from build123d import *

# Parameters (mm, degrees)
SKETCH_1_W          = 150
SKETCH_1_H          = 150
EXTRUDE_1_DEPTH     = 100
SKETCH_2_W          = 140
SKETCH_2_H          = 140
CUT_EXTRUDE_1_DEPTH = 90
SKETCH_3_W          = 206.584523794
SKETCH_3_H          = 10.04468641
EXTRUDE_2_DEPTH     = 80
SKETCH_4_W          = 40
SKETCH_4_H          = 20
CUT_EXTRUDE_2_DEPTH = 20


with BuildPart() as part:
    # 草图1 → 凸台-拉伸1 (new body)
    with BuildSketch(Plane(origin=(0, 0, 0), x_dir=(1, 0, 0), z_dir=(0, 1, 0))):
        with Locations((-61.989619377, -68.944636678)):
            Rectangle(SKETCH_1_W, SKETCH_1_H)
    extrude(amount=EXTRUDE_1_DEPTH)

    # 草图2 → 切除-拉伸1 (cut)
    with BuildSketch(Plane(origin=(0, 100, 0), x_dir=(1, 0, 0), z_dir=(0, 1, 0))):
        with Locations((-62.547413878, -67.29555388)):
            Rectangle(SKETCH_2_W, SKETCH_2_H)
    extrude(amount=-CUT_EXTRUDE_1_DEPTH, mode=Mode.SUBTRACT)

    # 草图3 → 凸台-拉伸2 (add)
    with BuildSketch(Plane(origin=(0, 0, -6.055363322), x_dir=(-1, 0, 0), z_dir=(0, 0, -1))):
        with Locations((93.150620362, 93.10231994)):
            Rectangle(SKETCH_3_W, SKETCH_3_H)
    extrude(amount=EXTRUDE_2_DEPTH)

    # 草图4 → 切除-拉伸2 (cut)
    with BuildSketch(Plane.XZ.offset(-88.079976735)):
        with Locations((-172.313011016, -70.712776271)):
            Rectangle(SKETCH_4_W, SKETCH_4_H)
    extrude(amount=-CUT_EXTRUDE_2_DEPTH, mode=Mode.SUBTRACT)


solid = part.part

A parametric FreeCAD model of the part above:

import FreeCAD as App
import Part
import Sketcher
from FreeCAD import Vector

doc = App.newDocument("Part")
body = doc.addObject("PartDesign::Body", "Body")

sketch1 = body.newObject("Sketcher::SketchObject", "Sketch")
sketch1.AttachmentSupport = (doc.getObject("XZ_Plane"), [""])
sketch1.MapMode = "FlatFace"
sketch1.addGeometry(Part.LineSegment(Vector(-137, -6, 0), Vector(-137, 144, 0)), False)
sketch1.addGeometry(Part.LineSegment(Vector(-137, 144, 0), Vector(13, 144, 0)), False)
sketch1.addGeometry(Part.LineSegment(Vector(13, 144, 0), Vector(13, -6, 0)), False)
sketch1.addGeometry(Part.LineSegment(Vector(13, -6, 0), Vector(-137, -6, 0)), False)
sketch1.addConstraint(Sketcher.Constraint("Coincident", 0, 2, 1, 1))
sketch1.addConstraint(Sketcher.Constraint("Coincident", 1, 2, 2, 1))
sketch1.addConstraint(Sketcher.Constraint("Coincident", 2, 2, 3, 1))
sketch1.addConstraint(Sketcher.Constraint("Coincident", 3, 2, 0, 1))
sketch1.addConstraint(Sketcher.Constraint("Vertical", 0))
sketch1.addConstraint(Sketcher.Constraint("Horizontal", 1))
sketch1.addConstraint(Sketcher.Constraint("Vertical", 2))
sketch1.addConstraint(Sketcher.Constraint("Horizontal", 3))
sketch1.addConstraint(Sketcher.Constraint("Equal", 3, 0))
sketch1.addConstraint(Sketcher.Constraint("DistanceX", 1, 1, 1, 2, 150.0))
sketch1.addConstraint(Sketcher.Constraint("DistanceX", 0, 2, -1, 1, 136.989619))
sketch1.addConstraint(Sketcher.Constraint("DistanceY", -1, 1, 0, 2, 143.944637))
pad1 = body.newObject("PartDesign::Pad", "Pad")
pad1.Profile = sketch1
pad1.Length = 100
pad1.Reversed = True

sketch2 = body.newObject("Sketcher::SketchObject", "Sketch001")
sketch2.AttachmentSupport = (doc.getObject("XZ_Plane"), [""])
sketch2.MapMode = "FlatFace"
sketch2.AttachmentOffset = App.Placement(Vector(0, 0, -100), App.Rotation())
sketch2.addGeometry(Part.LineSegment(Vector(-133, -3, 0), Vector(-133, 137, 0)), False)
sketch2.addGeometry(Part.LineSegment(Vector(-133, 137, 0), Vector(7, 137, 0)), False)
sketch2.addGeometry(Part.LineSegment(Vector(7, 137, 0), Vector(7, -3, 0)), False)
sketch2.addGeometry(Part.LineSegment(Vector(7, -3, 0), Vector(-133, -3, 0)), False)
sketch2.addConstraint(Sketcher.Constraint("Coincident", 0, 2, 1, 1))
sketch2.addConstraint(Sketcher.Constraint("Coincident", 1, 2, 2, 1))
sketch2.addConstraint(Sketcher.Constraint("Coincident", 2, 2, 3, 1))
sketch2.addConstraint(Sketcher.Constraint("Coincident", 3, 2, 0, 1))
sketch2.addConstraint(Sketcher.Constraint("Vertical", 0))
sketch2.addConstraint(Sketcher.Constraint("Horizontal", 1))
sketch2.addConstraint(Sketcher.Constraint("Vertical", 2))
sketch2.addConstraint(Sketcher.Constraint("Horizontal", 3))
sketch2.addConstraint(Sketcher.Constraint("Equal", 3, 0))
sketch2.addConstraint(Sketcher.Constraint("DistanceX", 1, 1, 1, 2, 140.0))
sketch2.addConstraint(Sketcher.Constraint("DistanceX", 0, 2, -1, 1, 132.547414))
sketch2.addConstraint(Sketcher.Constraint("DistanceY", -1, 1, 0, 2, 137.295554))
pocket1 = body.newObject("PartDesign::Pocket", "Pocket")
pocket1.Profile = sketch2
pocket1.Length = 90
pocket1.Reversed = True

sketch3 = body.newObject("Sketcher::SketchObject", "Sketch002")
sketch3.AttachmentSupport = (doc.getObject("XY_Plane"), [""])
sketch3.MapMode = "FlatFace"
sketch3.AttachmentOffset = App.Placement(Vector(0, 0, -6.055363), App.Rotation())
sketch3.addGeometry(Part.LineSegment(Vector(10, 98, 0), Vector(10, 88, 0)), False)
sketch3.addGeometry(Part.LineSegment(Vector(10, 88, 0), Vector(-196, 88, 0)), False)
sketch3.addGeometry(Part.LineSegment(Vector(-196, 88, 0), Vector(-196, 98, 0)), False)
sketch3.addGeometry(Part.LineSegment(Vector(-196, 98, 0), Vector(10, 98, 0)), False)
sketch3.addConstraint(Sketcher.Constraint("Coincident", 0, 2, 1, 1))
sketch3.addConstraint(Sketcher.Constraint("Coincident", 1, 2, 2, 1))
sketch3.addConstraint(Sketcher.Constraint("Coincident", 2, 2, 3, 1))
sketch3.addConstraint(Sketcher.Constraint("Coincident", 3, 2, 0, 1))
sketch3.addConstraint(Sketcher.Constraint("Vertical", 0))
sketch3.addConstraint(Sketcher.Constraint("Horizontal", 1))
sketch3.addConstraint(Sketcher.Constraint("Vertical", 2))
sketch3.addConstraint(Sketcher.Constraint("Horizontal", 3))
sketch3.addConstraint(Sketcher.Constraint("DistanceX", 1, 2, 1, 1, 206.584524))
sketch3.addConstraint(Sketcher.Constraint("DistanceY", 0, 2, 0, 1, 10.044686))
sketch3.addConstraint(Sketcher.Constraint("DistanceX", -1, 1, 0, 2, 10.141642))
sketch3.addConstraint(Sketcher.Constraint("DistanceY", -1, 1, 0, 2, 88.079977))
pad2 = body.newObject("PartDesign::Pad", "Pad001")
pad2.Profile = sketch3
pad2.Length = 80
pad2.Reversed = True

sketch4 = body.newObject("Sketcher::SketchObject", "Sketch003")
sketch4.AttachmentSupport = (doc.getObject("XZ_Plane"), [""])
sketch4.MapMode = "FlatFace"
sketch4.AttachmentOffset = App.Placement(Vector(0, 0, -88.079977), App.Rotation())
sketch4.addGeometry(Part.LineSegment(Vector(-192, -61, 0), Vector(-192, -81, 0)), False)
sketch4.addGeometry(Part.LineSegment(Vector(-192, -81, 0), Vector(-152, -81, 0)), False)
sketch4.addGeometry(Part.LineSegment(Vector(-152, -81, 0), Vector(-152, -61, 0)), False)
sketch4.addGeometry(Part.LineSegment(Vector(-152, -61, 0), Vector(-192, -61, 0)), False)
sketch4.addConstraint(Sketcher.Constraint("Coincident", 0, 2, 1, 1))
sketch4.addConstraint(Sketcher.Constraint("Coincident", 1, 2, 2, 1))
sketch4.addConstraint(Sketcher.Constraint("Coincident", 2, 2, 3, 1))
sketch4.addConstraint(Sketcher.Constraint("Coincident", 3, 2, 0, 1))
sketch4.addConstraint(Sketcher.Constraint("Vertical", 0))
sketch4.addConstraint(Sketcher.Constraint("Horizontal", 1))
sketch4.addConstraint(Sketcher.Constraint("Vertical", 2))
sketch4.addConstraint(Sketcher.Constraint("Horizontal", 3))
sketch4.addConstraint(Sketcher.Constraint("DistanceX", 1, 1, 1, 2, 40.0))
sketch4.addConstraint(Sketcher.Constraint("DistanceY", 0, 2, 0, 1, 20.0))
sketch4.addConstraint(Sketcher.Constraint("DistanceX", 0, 2, -1, 1, 192.313011))
sketch4.addConstraint(Sketcher.Constraint("DistanceY", 0, 2, -1, 1, 80.712776))
pocket2 = body.newObject("PartDesign::Pocket", "Pocket001")
pocket2.Profile = sketch4
pocket2.Length = 20

doc.recompute()
